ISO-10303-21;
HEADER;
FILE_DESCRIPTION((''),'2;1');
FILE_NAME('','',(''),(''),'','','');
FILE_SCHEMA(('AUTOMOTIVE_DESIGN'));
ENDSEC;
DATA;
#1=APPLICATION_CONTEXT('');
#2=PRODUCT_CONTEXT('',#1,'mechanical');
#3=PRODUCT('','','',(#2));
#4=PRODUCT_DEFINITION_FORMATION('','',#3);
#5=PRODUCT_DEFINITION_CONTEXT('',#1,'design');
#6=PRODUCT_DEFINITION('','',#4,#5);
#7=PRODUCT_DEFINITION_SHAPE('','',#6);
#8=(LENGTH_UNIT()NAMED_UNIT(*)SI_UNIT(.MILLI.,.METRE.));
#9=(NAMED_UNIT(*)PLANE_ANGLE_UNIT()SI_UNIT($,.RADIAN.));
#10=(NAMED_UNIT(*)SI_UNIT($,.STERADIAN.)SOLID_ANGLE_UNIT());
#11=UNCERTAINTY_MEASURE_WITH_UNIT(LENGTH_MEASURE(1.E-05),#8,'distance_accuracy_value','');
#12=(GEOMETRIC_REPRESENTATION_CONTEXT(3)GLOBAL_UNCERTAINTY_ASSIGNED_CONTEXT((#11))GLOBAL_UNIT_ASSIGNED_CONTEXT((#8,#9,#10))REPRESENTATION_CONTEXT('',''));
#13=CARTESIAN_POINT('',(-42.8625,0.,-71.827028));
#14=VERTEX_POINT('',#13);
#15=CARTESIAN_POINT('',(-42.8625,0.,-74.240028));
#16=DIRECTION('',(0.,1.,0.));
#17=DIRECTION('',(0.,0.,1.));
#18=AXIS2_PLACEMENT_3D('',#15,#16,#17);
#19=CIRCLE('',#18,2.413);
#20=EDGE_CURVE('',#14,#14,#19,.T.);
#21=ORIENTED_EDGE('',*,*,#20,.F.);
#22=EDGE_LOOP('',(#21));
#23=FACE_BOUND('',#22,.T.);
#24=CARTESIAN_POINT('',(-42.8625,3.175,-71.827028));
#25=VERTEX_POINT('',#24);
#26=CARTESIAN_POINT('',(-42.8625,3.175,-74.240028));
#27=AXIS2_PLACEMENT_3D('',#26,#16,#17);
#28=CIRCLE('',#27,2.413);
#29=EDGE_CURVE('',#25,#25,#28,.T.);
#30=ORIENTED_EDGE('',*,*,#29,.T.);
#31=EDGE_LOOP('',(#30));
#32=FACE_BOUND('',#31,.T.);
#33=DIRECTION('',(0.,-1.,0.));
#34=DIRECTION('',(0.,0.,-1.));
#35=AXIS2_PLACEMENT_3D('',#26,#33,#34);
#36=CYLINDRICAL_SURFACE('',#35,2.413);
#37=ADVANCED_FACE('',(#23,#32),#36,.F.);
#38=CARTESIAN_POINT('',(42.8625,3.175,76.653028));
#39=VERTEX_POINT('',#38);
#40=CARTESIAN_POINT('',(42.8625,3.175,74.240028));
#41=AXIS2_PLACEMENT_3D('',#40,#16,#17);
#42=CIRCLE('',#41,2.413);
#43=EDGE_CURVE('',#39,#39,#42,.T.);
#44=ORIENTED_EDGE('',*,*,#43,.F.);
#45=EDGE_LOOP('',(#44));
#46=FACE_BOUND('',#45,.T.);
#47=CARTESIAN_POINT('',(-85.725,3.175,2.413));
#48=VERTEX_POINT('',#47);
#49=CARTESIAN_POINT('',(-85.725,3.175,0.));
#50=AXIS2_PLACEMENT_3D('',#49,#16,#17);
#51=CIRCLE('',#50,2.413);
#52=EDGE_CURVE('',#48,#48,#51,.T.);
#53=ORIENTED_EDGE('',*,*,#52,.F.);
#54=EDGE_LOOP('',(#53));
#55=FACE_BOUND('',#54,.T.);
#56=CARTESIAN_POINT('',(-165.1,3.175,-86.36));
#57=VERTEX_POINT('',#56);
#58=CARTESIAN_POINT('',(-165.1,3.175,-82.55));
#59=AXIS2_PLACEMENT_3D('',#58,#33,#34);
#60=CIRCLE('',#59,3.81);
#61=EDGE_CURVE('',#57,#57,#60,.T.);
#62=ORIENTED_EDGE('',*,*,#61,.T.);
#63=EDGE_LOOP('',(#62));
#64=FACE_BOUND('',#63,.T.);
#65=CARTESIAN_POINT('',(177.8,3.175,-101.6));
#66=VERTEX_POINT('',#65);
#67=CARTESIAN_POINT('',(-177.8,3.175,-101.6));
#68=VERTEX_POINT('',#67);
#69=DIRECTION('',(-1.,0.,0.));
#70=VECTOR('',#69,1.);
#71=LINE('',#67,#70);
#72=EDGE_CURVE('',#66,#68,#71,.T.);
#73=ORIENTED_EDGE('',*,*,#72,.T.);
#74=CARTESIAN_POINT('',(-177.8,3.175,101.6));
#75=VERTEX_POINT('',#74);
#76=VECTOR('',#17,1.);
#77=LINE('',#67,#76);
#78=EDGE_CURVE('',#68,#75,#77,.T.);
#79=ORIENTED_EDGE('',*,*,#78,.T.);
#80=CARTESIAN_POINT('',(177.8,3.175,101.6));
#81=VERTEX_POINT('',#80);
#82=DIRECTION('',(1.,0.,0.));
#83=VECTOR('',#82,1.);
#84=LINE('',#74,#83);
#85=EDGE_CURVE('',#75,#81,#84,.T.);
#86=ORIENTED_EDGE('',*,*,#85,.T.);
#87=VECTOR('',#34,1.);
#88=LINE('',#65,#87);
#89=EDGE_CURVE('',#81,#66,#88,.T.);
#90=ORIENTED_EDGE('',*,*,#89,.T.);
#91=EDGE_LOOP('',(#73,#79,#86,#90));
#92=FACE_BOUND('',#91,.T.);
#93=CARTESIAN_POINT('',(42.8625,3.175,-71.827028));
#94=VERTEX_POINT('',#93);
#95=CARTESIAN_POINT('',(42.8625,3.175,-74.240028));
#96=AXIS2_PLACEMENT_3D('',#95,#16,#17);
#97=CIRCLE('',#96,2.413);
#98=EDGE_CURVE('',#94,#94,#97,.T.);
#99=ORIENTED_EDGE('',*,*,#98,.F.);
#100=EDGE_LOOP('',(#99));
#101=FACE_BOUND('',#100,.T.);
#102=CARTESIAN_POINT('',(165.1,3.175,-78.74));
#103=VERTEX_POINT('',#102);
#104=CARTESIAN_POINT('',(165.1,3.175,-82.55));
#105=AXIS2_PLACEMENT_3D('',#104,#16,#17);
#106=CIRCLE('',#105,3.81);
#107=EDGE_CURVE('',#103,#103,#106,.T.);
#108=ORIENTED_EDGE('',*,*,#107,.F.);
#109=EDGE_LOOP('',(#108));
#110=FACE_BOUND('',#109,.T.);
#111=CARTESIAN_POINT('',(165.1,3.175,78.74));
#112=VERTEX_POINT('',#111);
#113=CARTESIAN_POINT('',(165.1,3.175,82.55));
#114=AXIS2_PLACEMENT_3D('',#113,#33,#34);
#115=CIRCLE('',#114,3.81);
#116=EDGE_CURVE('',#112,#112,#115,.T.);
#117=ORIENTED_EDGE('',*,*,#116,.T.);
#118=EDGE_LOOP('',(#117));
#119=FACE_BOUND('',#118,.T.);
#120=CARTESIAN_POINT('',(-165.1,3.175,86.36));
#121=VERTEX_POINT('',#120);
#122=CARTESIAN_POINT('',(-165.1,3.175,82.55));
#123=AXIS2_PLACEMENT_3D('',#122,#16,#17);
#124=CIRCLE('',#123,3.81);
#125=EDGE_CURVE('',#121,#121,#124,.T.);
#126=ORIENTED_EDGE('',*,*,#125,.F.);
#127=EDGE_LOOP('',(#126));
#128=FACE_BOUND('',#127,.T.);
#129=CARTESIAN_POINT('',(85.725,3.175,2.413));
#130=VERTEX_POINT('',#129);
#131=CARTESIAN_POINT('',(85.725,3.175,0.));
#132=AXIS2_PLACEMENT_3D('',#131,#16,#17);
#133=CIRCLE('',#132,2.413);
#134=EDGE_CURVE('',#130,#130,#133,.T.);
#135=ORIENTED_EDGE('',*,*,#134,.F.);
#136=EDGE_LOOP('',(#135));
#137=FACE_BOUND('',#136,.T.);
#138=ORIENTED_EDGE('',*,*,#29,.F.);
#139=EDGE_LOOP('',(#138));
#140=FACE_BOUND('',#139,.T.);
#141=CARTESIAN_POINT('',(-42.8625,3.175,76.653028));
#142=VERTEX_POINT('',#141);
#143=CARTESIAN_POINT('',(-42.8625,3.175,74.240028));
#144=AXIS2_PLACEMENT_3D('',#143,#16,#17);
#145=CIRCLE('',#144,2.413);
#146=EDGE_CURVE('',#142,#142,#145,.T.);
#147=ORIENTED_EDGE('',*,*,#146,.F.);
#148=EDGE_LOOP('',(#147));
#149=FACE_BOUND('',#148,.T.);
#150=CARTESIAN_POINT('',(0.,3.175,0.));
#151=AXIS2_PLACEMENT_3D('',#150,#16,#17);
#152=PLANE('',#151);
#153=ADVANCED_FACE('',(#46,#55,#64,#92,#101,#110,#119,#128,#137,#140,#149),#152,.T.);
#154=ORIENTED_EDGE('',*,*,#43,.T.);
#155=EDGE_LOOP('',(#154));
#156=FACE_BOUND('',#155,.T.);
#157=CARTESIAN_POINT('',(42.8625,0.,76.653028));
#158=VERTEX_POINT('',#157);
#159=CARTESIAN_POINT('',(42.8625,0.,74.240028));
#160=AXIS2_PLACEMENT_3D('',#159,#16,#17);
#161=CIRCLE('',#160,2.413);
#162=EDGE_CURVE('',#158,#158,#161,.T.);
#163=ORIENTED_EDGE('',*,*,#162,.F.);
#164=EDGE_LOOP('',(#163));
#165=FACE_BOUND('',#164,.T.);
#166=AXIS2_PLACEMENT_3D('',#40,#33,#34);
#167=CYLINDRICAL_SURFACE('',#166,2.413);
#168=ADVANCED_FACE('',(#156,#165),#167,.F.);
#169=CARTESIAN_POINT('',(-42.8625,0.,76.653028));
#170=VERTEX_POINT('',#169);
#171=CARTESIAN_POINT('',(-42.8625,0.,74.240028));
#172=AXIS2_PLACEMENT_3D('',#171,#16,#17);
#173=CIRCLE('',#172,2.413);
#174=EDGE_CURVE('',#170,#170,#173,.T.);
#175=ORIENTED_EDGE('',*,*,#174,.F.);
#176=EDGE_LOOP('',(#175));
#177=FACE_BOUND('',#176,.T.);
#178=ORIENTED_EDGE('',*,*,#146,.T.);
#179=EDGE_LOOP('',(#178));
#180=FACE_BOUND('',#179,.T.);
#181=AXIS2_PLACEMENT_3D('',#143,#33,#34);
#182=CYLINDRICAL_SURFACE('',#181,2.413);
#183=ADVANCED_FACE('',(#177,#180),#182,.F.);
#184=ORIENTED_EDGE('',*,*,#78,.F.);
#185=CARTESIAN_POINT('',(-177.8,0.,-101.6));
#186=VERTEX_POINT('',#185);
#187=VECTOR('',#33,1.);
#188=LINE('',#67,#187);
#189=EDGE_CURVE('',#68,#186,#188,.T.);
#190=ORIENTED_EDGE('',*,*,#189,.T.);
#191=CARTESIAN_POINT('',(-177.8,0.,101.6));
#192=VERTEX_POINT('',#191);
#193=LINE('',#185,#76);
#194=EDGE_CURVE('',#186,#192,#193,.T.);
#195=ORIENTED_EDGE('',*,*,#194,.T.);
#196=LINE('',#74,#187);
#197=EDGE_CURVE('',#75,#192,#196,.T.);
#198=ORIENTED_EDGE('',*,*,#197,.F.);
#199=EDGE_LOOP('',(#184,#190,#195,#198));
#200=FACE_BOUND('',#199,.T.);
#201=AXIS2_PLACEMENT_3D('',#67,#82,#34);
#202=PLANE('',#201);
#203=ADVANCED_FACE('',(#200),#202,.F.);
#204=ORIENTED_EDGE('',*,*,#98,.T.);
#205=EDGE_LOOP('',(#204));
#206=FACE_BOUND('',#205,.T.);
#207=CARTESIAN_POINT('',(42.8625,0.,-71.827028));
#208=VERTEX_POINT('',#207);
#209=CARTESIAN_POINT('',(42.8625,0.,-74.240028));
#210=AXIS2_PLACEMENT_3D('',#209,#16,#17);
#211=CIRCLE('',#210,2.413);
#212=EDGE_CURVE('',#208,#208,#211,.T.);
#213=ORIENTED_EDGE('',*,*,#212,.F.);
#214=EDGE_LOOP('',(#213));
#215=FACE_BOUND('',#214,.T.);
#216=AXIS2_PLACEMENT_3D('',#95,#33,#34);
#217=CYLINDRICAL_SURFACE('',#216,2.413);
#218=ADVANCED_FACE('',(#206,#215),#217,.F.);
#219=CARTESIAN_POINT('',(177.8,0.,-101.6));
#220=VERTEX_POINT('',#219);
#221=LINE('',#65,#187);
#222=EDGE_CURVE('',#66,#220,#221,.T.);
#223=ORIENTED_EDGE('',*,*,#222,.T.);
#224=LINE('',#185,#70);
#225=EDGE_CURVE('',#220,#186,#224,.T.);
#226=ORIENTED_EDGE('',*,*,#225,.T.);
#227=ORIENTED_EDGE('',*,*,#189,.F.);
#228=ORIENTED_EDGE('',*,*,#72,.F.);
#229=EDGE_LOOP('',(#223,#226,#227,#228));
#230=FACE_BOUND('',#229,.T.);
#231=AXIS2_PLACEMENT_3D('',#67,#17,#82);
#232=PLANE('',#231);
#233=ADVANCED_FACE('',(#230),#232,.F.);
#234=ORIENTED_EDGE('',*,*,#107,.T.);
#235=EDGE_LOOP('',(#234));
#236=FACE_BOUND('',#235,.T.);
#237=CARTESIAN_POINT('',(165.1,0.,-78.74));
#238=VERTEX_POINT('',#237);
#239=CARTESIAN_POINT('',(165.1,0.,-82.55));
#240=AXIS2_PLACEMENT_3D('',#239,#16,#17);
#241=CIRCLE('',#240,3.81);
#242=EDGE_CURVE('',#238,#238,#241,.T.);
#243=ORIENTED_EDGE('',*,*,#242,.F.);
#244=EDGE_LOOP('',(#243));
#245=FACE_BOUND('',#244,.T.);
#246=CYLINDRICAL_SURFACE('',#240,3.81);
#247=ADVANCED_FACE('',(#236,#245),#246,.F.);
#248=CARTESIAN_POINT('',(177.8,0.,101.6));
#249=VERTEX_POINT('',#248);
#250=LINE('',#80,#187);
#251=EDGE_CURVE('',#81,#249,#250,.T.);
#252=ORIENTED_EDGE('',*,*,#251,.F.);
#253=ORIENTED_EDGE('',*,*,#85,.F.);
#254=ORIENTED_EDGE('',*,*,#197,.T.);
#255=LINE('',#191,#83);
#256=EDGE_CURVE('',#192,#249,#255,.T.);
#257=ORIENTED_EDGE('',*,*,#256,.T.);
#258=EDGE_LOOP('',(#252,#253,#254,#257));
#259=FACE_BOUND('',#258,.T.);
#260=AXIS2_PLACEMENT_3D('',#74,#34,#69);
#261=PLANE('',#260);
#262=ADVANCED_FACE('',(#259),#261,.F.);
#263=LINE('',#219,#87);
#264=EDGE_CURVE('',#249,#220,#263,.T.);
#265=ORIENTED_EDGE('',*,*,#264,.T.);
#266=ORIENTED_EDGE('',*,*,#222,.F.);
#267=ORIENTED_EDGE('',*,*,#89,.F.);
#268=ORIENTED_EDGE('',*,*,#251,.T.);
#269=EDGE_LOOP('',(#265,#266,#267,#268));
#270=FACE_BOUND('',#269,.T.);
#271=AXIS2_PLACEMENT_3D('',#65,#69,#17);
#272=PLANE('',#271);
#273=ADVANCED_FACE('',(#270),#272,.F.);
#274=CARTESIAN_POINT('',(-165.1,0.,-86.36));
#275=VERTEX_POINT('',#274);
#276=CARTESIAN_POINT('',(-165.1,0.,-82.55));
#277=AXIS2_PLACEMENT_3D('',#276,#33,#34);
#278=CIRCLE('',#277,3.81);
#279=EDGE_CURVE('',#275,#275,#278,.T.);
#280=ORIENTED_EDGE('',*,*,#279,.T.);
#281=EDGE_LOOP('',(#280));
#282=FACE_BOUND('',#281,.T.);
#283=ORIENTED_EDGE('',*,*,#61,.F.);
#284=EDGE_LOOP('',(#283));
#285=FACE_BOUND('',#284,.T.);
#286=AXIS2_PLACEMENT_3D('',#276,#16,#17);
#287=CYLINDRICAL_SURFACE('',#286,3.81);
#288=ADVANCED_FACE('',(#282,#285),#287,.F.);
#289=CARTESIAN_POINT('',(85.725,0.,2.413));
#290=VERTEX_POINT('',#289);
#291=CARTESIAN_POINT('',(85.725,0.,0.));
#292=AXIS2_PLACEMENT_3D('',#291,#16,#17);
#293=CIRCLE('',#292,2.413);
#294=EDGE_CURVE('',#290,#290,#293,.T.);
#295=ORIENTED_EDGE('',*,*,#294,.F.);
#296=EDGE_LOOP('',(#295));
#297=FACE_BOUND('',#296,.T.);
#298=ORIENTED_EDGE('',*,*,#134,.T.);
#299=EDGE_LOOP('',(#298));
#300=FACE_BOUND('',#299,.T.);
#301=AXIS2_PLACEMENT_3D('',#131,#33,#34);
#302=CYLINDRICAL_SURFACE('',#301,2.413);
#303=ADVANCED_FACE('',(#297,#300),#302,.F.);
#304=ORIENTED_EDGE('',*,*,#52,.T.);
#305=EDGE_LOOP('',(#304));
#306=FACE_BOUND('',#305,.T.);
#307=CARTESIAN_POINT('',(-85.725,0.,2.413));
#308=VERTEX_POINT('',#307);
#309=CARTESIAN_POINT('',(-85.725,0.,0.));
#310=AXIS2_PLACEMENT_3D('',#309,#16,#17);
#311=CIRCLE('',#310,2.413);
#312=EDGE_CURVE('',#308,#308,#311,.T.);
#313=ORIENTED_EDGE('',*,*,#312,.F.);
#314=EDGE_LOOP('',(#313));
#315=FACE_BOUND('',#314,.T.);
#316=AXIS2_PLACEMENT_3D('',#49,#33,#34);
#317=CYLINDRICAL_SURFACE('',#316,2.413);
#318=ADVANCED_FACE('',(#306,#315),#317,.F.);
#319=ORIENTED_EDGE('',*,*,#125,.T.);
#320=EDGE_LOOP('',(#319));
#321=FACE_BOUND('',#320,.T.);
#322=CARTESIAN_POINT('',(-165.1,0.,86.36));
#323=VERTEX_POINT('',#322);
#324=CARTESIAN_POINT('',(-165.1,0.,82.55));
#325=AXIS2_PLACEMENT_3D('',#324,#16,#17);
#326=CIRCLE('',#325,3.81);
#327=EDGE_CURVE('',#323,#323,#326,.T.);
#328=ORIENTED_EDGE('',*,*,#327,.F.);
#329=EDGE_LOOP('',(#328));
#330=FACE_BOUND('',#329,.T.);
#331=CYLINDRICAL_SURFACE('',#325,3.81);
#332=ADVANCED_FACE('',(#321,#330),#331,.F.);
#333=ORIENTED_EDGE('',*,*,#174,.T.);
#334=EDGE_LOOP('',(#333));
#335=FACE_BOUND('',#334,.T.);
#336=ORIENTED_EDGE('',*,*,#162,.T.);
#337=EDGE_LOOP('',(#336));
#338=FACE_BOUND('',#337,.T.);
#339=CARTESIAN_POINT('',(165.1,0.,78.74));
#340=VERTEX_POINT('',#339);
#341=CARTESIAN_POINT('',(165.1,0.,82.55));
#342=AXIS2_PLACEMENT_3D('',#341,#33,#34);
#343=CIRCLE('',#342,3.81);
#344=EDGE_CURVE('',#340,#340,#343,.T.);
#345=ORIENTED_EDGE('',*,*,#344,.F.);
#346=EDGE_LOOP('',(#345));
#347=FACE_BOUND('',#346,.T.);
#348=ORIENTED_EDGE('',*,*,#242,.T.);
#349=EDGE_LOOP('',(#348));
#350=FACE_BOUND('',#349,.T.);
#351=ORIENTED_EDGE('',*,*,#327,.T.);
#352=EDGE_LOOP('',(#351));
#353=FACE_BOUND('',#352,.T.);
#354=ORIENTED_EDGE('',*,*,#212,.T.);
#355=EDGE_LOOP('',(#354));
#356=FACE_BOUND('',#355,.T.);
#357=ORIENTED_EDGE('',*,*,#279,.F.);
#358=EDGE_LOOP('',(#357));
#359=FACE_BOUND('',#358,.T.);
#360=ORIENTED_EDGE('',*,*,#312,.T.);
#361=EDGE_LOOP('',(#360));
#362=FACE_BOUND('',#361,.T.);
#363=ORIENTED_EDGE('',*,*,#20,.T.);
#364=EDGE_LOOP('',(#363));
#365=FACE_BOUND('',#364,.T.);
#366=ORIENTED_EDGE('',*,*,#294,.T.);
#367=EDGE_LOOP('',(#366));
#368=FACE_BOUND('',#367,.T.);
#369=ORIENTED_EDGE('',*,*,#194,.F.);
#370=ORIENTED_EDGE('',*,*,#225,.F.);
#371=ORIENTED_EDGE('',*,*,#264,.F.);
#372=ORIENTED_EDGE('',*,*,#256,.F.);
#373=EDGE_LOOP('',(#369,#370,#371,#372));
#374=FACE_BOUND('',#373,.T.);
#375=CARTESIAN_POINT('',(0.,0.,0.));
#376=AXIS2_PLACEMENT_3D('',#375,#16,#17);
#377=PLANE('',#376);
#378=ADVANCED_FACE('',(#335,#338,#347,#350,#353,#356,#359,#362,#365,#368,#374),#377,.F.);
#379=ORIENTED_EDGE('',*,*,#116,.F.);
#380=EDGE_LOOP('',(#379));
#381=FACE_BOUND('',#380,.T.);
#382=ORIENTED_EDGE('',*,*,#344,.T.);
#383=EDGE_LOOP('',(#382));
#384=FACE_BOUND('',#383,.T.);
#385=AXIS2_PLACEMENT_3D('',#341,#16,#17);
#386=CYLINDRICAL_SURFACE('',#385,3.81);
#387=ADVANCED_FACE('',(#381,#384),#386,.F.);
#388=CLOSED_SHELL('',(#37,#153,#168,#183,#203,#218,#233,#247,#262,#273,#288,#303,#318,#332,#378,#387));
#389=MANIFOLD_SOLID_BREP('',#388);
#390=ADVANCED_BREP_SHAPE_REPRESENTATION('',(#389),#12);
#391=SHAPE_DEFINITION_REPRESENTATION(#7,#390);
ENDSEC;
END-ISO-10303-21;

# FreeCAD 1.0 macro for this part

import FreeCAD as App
import Part
import Sketcher
from FreeCAD import Vector
Q = App.Units.Quantity


def add_polygon(sketch, points):
    """Adds a closed chain of lines whose ends are joined by coincident constraints."""
    first, n = sketch.GeometryCount, len(points)
    for a, b in zip(points, points[1:] + points[:1]):
        sketch.addGeometry(Part.LineSegment(App.Vector(*a, 0), App.Vector(*b, 0)), False)
    for i in range(n):
        sketch.addConstraint(Sketcher.Constraint("Coincident", first + i, 2, first + (i + 1) % n, 1))

doc = App.newDocument("Part")
params = doc.addObject("Spreadsheet::Sheet", "Params")
for row, (alias, value) in enumerate([
    ("sketch1_diameter", "0.19 in"),
    ("sketch1_width", "14 in"),
    ("sketch1_height", "8 in"),
    ("pad1_length", "0.125 in"),
    ("sketch2_diameter", "0.3 in"),
], start=1):
    params.set(f"A{row}", alias)
    params.set(f"B{row}", "=" + value)
    params.setAlias(f"B{row}", alias)

body = doc.addObject("PartDesign::Body", "Body")

# Sketch on XZ plane
sketch1 = doc.addObject("Sketcher::SketchObject", "Sketch")
body.addObject(sketch1)
sketch1.AttachmentSupport = (doc.XZ_Plane, [""])
sketch1.MapMode = "FlatFace"
add_polygon(sketch1, [(-177.8, -101.6), (-177.8, 101.6), (177.8, 101.6), (177.8, -101.6)])  # lines 0-3
sketch1.addGeometry(Part.Circle(Vector(-42.9, 74.2, 0), Vector(0, 0, 1), 2.4), False)  # 4
sketch1.addGeometry(Part.Circle(Vector(42.9, 74.2, 0), Vector(0, 0, 1), 2.4), False)  # 5
sketch1.addGeometry(Part.Circle(Vector(-85.7, 0, 0), Vector(0, 0, 1), 2.4), False)  # 6
sketch1.addGeometry(Part.Circle(Vector(-42.9, -74.2, 0), Vector(0, 0, 1), 2.4), False)  # 7
sketch1.addGeometry(Part.Circle(Vector(85.7, 0, 0), Vector(0, 0, 1), 2.4), False)  # 8
sketch1.addGeometry(Part.Circle(Vector(42.9, -74.2, 0), Vector(0, 0, 1), 2.4), False)  # 9
sketch1.addConstraint(Sketcher.Constraint("Vertical", 0))
sketch1.addConstraint(Sketcher.Constraint("Horizontal", 1))
sketch1.addConstraint(Sketcher.Constraint("Vertical", 2))
sketch1.addConstraint(Sketcher.Constraint("Horizontal", 3))
sketch1.addConstraint(Sketcher.Constraint("Equal", 4, 5))
sketch1.addConstraint(Sketcher.Constraint("Equal", 5, 6))
sketch1.addConstraint(Sketcher.Constraint("Equal", 6, 7))
sketch1.addConstraint(Sketcher.Constraint("Equal", 7, 8))
sketch1.addConstraint(Sketcher.Constraint("Equal", 8, 9))
sketch1.addConstraint(Sketcher.Constraint("Symmetric", 5, 3, 7, 3, -1, 1))
sketch1.addConstraint(Sketcher.Constraint("Symmetric", 6, 3, 8, 3, -1, 1))
sketch1.addConstraint(Sketcher.Constraint("Symmetric", 4, 3, 9, 3, -1, 1))
sketch1.addConstraint(Sketcher.Constraint("Symmetric", 0, 2, 2, 2, -1, 1))
sketch1.addConstraint(Sketcher.Constraint("Symmetric", 4, 3, 5, 3, -2))
sketch1.addConstraint(Sketcher.Constraint("PointOnObject", 6, 3, -1))
sketch1.addConstraint(Sketcher.Constraint("Diameter", 4, Q("0.19 in")))
sketch1.addConstraint(Sketcher.Constraint("DistanceX", 1, 1, 1, 2, Q("14 in")))
sketch1.addConstraint(Sketcher.Constraint("DistanceY", 0, 1, 0, 2, Q("8 in")))
sketch1.addConstraint(Sketcher.Constraint("DistanceX", 6, 3, 8, 3, Q("6.75 in")))
sketch1.addConstraint(Sketcher.Constraint("DistanceX", 4, 3, -1, 1, Q("1.6875 in")))
sketch1.addConstraint(Sketcher.Constraint("DistanceY", -1, 1, 4, 3, Q("74.240028 mm")))
sketch1.setExpression("Constraints[19]", "Params.sketch1_diameter")
sketch1.setExpression("Constraints[20]", "Params.sketch1_width")
sketch1.setExpression("Constraints[21]", "Params.sketch1_height")
pad1 = doc.addObject("PartDesign::Pad", "Pad")
body.addObject(pad1)
pad1.Profile = sketch1
pad1.setExpression("Length", "Params.pad1_length")
pad1.Reversed = True

# Sketch on XZ plane
sketch2 = doc.addObject("Sketcher::SketchObject", "Sketch001")
body.addObject(sketch2)
sketch2.AttachmentSupport = (doc.XZ_Plane, [""])
sketch2.MapMode = "FlatFace"
sketch2.AttachmentOffset = App.Placement(Vector(0, 0, -0.125 * 25.4), App.Rotation())
sketch2.addGeometry(Part.Circle(Vector(165.1, -82.5, 0), Vector(0, 0, 1), 3.8), False)
sketch2.addGeometry(Part.Circle(Vector(-165.1, -82.5, 0), Vector(0, 0, 1), 3.8), False)
sketch2.addGeometry(Part.Circle(Vector(-165.1, 82.5, 0), Vector(0, 0, 1), 3.8), False)
sketch2.addGeometry(Part.Circle(Vector(165.1, 82.5, 0), Vector(0, 0, 1), 3.8), False)
sketch2.addConstraint(Sketcher.Constraint("Equal", 0, 1))
sketch2.addConstraint(Sketcher.Constraint("Equal", 1, 2))
sketch2.addConstraint(Sketcher.Constraint("Equal", 2, 3))
sketch2.addConstraint(Sketcher.Constraint("Symmetric", 0, 3, 2, 3, -1, 1))
sketch2.addConstraint(Sketcher.Constraint("Symmetric", 1, 3, 3, 3, -1, 1))
sketch2.addConstraint(Sketcher.Constraint("Symmetric", 0, 3, 1, 3, -2))
sketch2.addConstraint(Sketcher.Constraint("Diameter", 0, Q("0.3 in")))
sketch2.addConstraint(Sketcher.Constraint("DistanceX", 1, 3, 0, 3, Q("13 in")))
sketch2.addConstraint(Sketcher.Constraint("DistanceY", 1, 3, 2, 3, Q("6.5 in")))
sketch2.setExpression("Constraints[6]", "Params.sketch2_diameter")
pocket1 = doc.addObject("PartDesign::Pocket", "Pocket")
body.addObject(pocket1)
pocket1.Profile = sketch2
pocket1.Type = "ThroughAll"
pocket1.Reversed = True

doc.recompute()
